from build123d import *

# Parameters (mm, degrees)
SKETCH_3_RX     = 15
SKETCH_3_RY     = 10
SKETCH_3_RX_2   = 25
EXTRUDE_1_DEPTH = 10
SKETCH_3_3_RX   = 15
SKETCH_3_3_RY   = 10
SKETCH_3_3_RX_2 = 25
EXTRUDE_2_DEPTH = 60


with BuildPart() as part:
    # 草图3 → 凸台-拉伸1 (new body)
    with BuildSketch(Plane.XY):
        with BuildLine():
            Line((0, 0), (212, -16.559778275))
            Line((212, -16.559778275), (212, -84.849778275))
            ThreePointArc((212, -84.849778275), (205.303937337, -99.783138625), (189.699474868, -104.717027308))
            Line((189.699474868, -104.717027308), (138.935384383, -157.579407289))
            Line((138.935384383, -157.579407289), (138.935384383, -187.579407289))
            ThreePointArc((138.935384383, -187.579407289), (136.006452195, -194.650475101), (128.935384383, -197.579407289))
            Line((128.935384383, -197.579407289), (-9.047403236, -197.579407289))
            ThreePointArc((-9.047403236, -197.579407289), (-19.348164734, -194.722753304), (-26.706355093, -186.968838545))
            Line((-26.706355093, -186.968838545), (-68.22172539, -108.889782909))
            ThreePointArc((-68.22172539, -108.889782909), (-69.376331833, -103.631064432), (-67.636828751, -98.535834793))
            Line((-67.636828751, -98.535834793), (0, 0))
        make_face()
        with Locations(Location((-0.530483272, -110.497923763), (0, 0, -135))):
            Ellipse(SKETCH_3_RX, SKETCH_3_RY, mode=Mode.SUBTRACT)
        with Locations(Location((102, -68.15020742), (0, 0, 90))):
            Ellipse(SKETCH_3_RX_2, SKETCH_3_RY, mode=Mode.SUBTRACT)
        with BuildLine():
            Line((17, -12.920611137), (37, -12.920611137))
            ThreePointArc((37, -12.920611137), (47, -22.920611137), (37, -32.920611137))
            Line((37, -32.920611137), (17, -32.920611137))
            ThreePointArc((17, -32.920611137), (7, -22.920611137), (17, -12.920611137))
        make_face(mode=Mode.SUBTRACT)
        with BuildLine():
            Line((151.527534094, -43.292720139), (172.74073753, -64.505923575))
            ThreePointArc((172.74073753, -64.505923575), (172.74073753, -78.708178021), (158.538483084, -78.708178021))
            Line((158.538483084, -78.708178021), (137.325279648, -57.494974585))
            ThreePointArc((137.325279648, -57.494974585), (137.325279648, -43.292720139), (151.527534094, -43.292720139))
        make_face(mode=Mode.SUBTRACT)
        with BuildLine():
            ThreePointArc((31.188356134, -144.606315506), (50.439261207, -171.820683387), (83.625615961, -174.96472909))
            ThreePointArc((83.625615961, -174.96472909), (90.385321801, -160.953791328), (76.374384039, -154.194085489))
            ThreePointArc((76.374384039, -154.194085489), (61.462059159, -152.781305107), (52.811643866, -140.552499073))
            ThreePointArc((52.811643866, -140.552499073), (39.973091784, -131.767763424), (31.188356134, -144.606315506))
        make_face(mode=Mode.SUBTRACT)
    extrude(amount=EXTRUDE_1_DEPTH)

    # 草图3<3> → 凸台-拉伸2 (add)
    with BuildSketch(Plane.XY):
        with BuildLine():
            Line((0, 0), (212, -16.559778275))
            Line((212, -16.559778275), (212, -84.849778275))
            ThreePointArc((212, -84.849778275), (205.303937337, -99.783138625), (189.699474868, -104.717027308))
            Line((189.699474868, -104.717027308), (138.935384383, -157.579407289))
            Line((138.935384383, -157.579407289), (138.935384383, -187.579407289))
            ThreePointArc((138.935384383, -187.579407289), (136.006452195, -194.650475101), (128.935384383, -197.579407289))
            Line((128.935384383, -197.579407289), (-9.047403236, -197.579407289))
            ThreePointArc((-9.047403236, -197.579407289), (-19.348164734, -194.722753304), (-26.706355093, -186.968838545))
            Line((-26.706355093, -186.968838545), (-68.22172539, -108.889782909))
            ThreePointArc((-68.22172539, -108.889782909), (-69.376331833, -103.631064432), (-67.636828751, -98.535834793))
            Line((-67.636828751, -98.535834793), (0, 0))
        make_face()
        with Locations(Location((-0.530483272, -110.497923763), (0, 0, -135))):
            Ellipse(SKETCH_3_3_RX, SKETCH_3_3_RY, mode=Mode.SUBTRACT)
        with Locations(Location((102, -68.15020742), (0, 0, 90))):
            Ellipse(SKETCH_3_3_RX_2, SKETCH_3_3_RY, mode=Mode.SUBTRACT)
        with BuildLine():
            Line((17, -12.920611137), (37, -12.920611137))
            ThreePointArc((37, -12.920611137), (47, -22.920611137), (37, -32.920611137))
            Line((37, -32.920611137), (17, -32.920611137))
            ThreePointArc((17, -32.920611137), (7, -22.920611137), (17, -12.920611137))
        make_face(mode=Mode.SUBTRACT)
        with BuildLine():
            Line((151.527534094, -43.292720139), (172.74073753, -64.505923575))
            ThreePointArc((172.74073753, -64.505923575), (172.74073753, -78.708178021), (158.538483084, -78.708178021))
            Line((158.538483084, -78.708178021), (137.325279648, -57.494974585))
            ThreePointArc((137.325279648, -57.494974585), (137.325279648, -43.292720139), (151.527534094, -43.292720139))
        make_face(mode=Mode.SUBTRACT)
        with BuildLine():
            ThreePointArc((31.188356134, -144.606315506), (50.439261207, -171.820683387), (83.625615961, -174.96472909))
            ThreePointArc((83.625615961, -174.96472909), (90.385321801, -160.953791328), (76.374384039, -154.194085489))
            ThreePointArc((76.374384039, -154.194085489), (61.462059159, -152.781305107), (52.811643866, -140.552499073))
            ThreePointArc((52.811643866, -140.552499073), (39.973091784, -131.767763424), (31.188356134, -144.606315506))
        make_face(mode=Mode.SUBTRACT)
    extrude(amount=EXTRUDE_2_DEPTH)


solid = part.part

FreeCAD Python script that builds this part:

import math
import FreeCAD as App
import Part
import Sketcher
Q = App.Units.Quantity

doc = App.newDocument("Part")
params = doc.addObject("Spreadsheet::Sheet", "Params")
for row, (alias, value) in enumerate([
    ("sketch1_radius", "10 mm"),
    ("sketch1_radius2", "20 mm"),
    ("sketch1_radius3", "11 mm"),
    ("sketch1_width", "20 mm"),
    ("sketch1_height", "30 mm"),
    ("pad1_length", "10 mm"),
    ("sketch2_radius", "10 mm"),
    ("sketch2_radius2", "20 mm"),
    ("sketch2_radius3", "11 mm"),
    ("sketch2_width", "20 mm"),
    ("sketch2_height", "30 mm"),
    ("pad2_length", "60 mm"),
], start=1):
    params.set(f"A{row}", alias)
    params.set(f"B{row}", "=" + value)
    params.setAlias(f"B{row}", alias)

body = doc.addObject("PartDesign::Body", "Body")

# Sketch on XY plane
sketch1 = body.newObject("Sketcher::SketchObject", "Sketch")
sketch1.AttachmentSupport = (doc.getObject("XY_Plane"), [""])
sketch1.MapMode = "FlatFace"
sketch1.addGeometry(Part.LineSegment(App.Vector(212, -16.559778, 0), App.Vector(0, 0, 0)), False)
sketch1.addGeometry(Part.LineSegment(App.Vector(0, 0, 0), App.Vector(-67.636829, -98.535835, 0)), False)
sketch1.addGeometry(Part.ArcOfCircle(Part.Circle(App.Vector(-59.392249, -104.195067, 0), App.Vector(0, 0, 1), 10), math.radians(145.533572), math.radians(208)), False)
sketch1.addGeometry(Part.LineSegment(App.Vector(-68.221725, -108.889783, 0), App.Vector(-26.706355, -186.968839, 0)), False)
sketch1.addGeometry(Part.ArcOfCircle(Part.Circle(App.Vector(-9.047403, -177.579407, 0), App.Vector(0, 0, 1), 20), math.radians(-152), math.radians(-90)), False)
sketch1.addGeometry(Part.LineSegment(App.Vector(-9.047403, -197.579407, 0), App.Vector(128.935384, -197.579407, 0)), False)
sketch1.addGeometry(Part.ArcOfCircle(Part.Circle(App.Vector(128.935384, -187.579407, 0), App.Vector(0, 0, 1), 10), math.radians(-90), math.radians(0)), False)
sketch1.addGeometry(Part.LineSegment(App.Vector(138.935384, -187.579407, 0), App.Vector(138.935384, -157.579407, 0)), False)
sketch1.addGeometry(Part.LineSegment(App.Vector(138.935384, -157.579407, 0), App.Vector(189.699475, -104.717027, 0)), False)
sketch1.addGeometry(Part.ArcOfCircle(Part.Circle(App.Vector(192, -84.849778, 0), App.Vector(0, 0, 1), 20), math.radians(-96.605139), math.radians(0)), False)
sketch1.addGeometry(Part.LineSegment(App.Vector(212, -84.849778, 0), App.Vector(212, -16.559778, 0)), False)
sketch1.addGeometry(Part.ArcOfCircle(Part.Circle(App.Vector(42, -142.579407, 0), App.Vector(0, 0, 1), 11), math.radians(10.618247), math.radians(190.618247)), False)
sketch1.addGeometry(Part.ArcOfCircle(Part.Circle(App.Vector(70.457094, -137.244426, 0), App.Vector(0, 0, 1), 17.952863), math.radians(-169.381753), math.radians(-70.755413)), False)
sketch1.addGeometry(Part.ArcOfCircle(Part.Circle(App.Vector(80, -164.579407, 0), App.Vector(0, 0, 1), 11), math.radians(-70.755413), math.radians(109.244587)), False)
sketch1.addGeometry(Part.ArcOfCircle(Part.Circle(App.Vector(70.457094, -137.244426, 0), App.Vector(0, 0, 1), 39.952863), math.radians(-169.381753), math.radians(-70.755413)), False)
sketch1.addGeometry(Part.Ellipse(App.Vector(-11.137085, -121.104525, 0), App.Vector(6.540585, -117.568992, 0), App.Vector(-0.530483, -110.497924, 0)), False)
sketch1.addGeometry(Part.LineSegment(App.Vector(151.527534, -43.29272, 0), App.Vector(172.740738, -64.505924, 0)), False)
sketch1.addGeometry(Part.ArcOfCircle(Part.Circle(App.Vector(165.63961, -71.607051, 0), App.Vector(0, 0, 1), 10.04251), math.radians(-135), math.radians(45)), False)
sketch1.addGeometry(Part.LineSegment(App.Vector(158.538483, -78.708178, 0), App.Vector(137.32528, -57.494975, 0)), False)
sketch1.addGeometry(Part.ArcOfCircle(Part.Circle(App.Vector(144.426407, -50.393847, 0), App.Vector(0, 0, 1), 10.04251), math.radians(45), math.radians(225)), False)
sketch1.addGeometry(Part.Ellipse(App.Vector(102, -43.150207, 0), App.Vector(92, -68.150207, 0), App.Vector(102, -68.150207, 0)), False)
sketch1.addGeometry(Part.LineSegment(App.Vector(17, -12.920611, 0), App.Vector(37, -12.920611, 0)), False)
sketch1.addGeometry(Part.ArcOfCircle(Part.Circle(App.Vector(37, -22.920611, 0), App.Vector(0, 0, 1), 10), math.radians(-90), math.radians(90)), False)
sketch1.addGeometry(Part.LineSegment(App.Vector(37, -32.920611, 0), App.Vector(17, -32.920611, 0)), False)
sketch1.addGeometry(Part.ArcOfCircle(Part.Circle(App.Vector(17, -22.920611, 0), App.Vector(0, 0, 1), 10), math.radians(90), math.radians(270)), False)
sketch1.addConstraint(Sketcher.Constraint("Block", 15))
sketch1.addConstraint(Sketcher.Constraint("Block", 20))
sketch1.addConstraint(Sketcher.Constraint("Coincident", 0, 2, 1, 1))
sketch1.addConstraint(Sketcher.Constraint("Tangent", 1, 2, 2, 1))
sketch1.addConstraint(Sketcher.Constraint("Tangent", 2, 2, 3, 1))
sketch1.addConstraint(Sketcher.Constraint("Tangent", 3, 2, 4, 1))
sketch1.addConstraint(Sketcher.Constraint("Tangent", 4, 2, 5, 1))
sketch1.addConstraint(Sketcher.Constraint("Tangent", 5, 2, 6, 1))
sketch1.addConstraint(Sketcher.Constraint("Tangent", 6, 2, 7, 1))
sketch1.addConstraint(Sketcher.Constraint("Coincident", 7, 2, 8, 1))
sketch1.addConstraint(Sketcher.Constraint("Coincident", 8, 2, 9, 1))
sketch1.addConstraint(Sketcher.Constraint("Tangent", 9, 2, 10, 1))
sketch1.addConstraint(Sketcher.Constraint("Coincident", 10, 2, 0, 1))
sketch1.addConstraint(Sketcher.Constraint("Tangent", 11, 1, 12, 1))
sketch1.addConstraint(Sketcher.Constraint("Tangent", 12, 2, 13, 2))
sketch1.addConstraint(Sketcher.Constraint("Tangent", 13, 1, 14, 2))
sketch1.addConstraint(Sketcher.Constraint("Tangent", 14, 1, 11, 2))
sketch1.addConstraint(Sketcher.Constraint("Tangent", 16, 2, 17, 2))
sketch1.addConstraint(Sketcher.Constraint("Tangent", 17, 1, 18, 1))
sketch1.addConstraint(Sketcher.Constraint("Tangent", 18, 2, 19, 2))
sketch1.addConstraint(Sketcher.Constraint("Tangent", 19, 1, 16, 1))
sketch1.addConstraint(Sketcher.Constraint("Tangent", 21, 2, 22, 2))
sketch1.addConstraint(Sketcher.Constraint("Tangent", 22, 1, 23, 1))
sketch1.addConstraint(Sketcher.Constraint("Tangent", 23, 2, 24, 2))
sketch1.addConstraint(Sketcher.Constraint("Tangent", 24, 1, 21, 1))
sketch1.addConstraint(Sketcher.Constraint("Horizontal", 5))
sketch1.addConstraint(Sketcher.Constraint("Vertical", 7))
sketch1.addConstraint(Sketcher.Constraint("Vertical", 10))
sketch1.addConstraint(Sketcher.Constraint("Horizontal", 21))
sketch1.addConstraint(Sketcher.Constraint("Horizontal", 23))
sketch1.addConstraint(Sketcher.Constraint("Coincident", 0, 2, -1, 1))
sketch1.addConstraint(Sketcher.Constraint("Coincident", 14, 3, 12, 3))
sketch1.addConstraint(Sketcher.Constraint("Equal", 2, 6))
sketch1.addConstraint(Sketcher.Constraint("Equal", 4, 9))
sketch1.addConstraint(Sketcher.Constraint("Equal", 17, 19))
sketch1.addConstraint(Sketcher.Constraint("Equal", 6, 22))
sketch1.addConstraint(Sketcher.Constraint("Radius", 2, Q("10 mm")))
sketch1.addConstraint(Sketcher.Constraint("Radius", 4, Q("20 mm")))
sketch1.addConstraint(Sketcher.Constraint("Radius", 11, Q("11 mm")))
sketch1.addConstraint(Sketcher.Constraint("DistanceX", 21, 1, 21, 2, Q("20 mm")))
sketch1.addConstraint(Sketcher.Constraint("DistanceY", 7, 1, 7, 2, Q("30 mm")))
sketch1.addConstraint(Sketcher.Constraint("Angle", 3, Q("-62 deg")))
sketch1.addConstraint(Sketcher.Constraint("Angle", 16, Q("-45 deg")))
sketch1.addConstraint(Sketcher.Constraint("Distance", 16, Q("30 mm")))
sketch1.addConstraint(Sketcher.Constraint("DistanceX", -1, 1, 9, 3, Q("192 mm")))
sketch1.addConstraint(Sketcher.Constraint("DistanceX", -1, 1, 11, 3, Q("42 mm")))
sketch1.addConstraint(Sketcher.Constraint("DistanceX", -1, 1, 13, 3, Q("80 mm")))
sketch1.addConstraint(Sketcher.Constraint("DistanceX", -1, 1, 22, 3, Q("37 mm")))
sketch1.addConstraint(Sketcher.Constraint("DistanceY", 4, 3, 11, 3, Q("35 mm")))
sketch1.addConstraint(Sketcher.Constraint("DistanceY", 13, 3, 11, 3, Q("22 mm")))
sketch1.addConstraint(Sketcher.Constraint("DistanceY", 10, 1, 10, 2, Q("68.29 mm")))
sketch1.addConstraint(Sketcher.Constraint("Angle", 8, Q("46.16 deg")))
sketch1.addConstraint(Sketcher.Constraint("Distance", 3, Q("88.43 mm")))
sketch1.addConstraint(Sketcher.Constraint("Distance", 8, Q("73.29 mm")))
sketch1.addConstraint(Sketcher.Constraint("Radius", 17, Q("10.04251 mm")))
sketch1.addConstraint(Sketcher.Constraint("Radius", 12, Q("17.952863 mm")))
sketch1.addConstraint(Sketcher.Constraint("DistanceY", 11, 1, -1, 1, Q("140.552499 mm")))
sketch1.addConstraint(Sketcher.Constraint("DistanceY", 9, 3, 17, 1, Q("6.1416 mm")))
sketch1.addConstraint(Sketcher.Constraint("DistanceX", 5, 1, 5, 2, Q("137.982788 mm")))
sketch1.addConstraint(Sketcher.Constraint("DistanceX", 2, 3, -1, 1, Q("59.392249 mm")))
sketch1.addConstraint(Sketcher.Constraint("DistanceX", -1, 1, 17, 3, Q("165.63961 mm")))
sketch1.addConstraint(Sketcher.Constraint("DistanceY", 22, 3, -1, 1, Q("22.920611 mm")))
sketch1.setExpression("Constraints[36]", "Params.sketch1_radius")
sketch1.setExpression("Constraints[37]", "Params.sketch1_radius2")
sketch1.setExpression("Constraints[38]", "Params.sketch1_radius3")
sketch1.setExpression("Constraints[39]", "Params.sketch1_width")
sketch1.setExpression("Constraints[40]", "Params.sketch1_height")
pad1 = body.newObject("PartDesign::Pad", "Pad")
pad1.Profile = sketch1
pad1.setExpression("Length", "Params.pad1_length")

# Sketch on XY plane
sketch2 = body.newObject("Sketcher::SketchObject", "Sketch001")
sketch2.AttachmentSupport = (doc.getObject("XY_Plane"), [""])
sketch2.MapMode = "FlatFace"
sketch2.addGeometry(Part.LineSegment(App.Vector(212, -16.559778, 0), App.Vector(0, 0, 0)), False)
sketch2.addGeometry(Part.LineSegment(App.Vector(0, 0, 0), App.Vector(-67.636829, -98.535835, 0)), False)
sketch2.addGeometry(Part.ArcOfCircle(Part.Circle(App.Vector(-59.392249, -104.195067, 0), App.Vector(0, 0, 1), 10), math.radians(145.533572), math.radians(208)), False)
sketch2.addGeometry(Part.LineSegment(App.Vector(-68.221725, -108.889783, 0), App.Vector(-26.706355, -186.968839, 0)), False)
sketch2.addGeometry(Part.ArcOfCircle(Part.Circle(App.Vector(-9.047403, -177.579407, 0), App.Vector(0, 0, 1), 20), math.radians(-152), math.radians(-90)), False)
sketch2.addGeometry(Part.LineSegment(App.Vector(-9.047403, -197.579407, 0), App.Vector(128.935384, -197.579407, 0)), False)
sketch2.addGeometry(Part.ArcOfCircle(Part.Circle(App.Vector(128.935384, -187.579407, 0), App.Vector(0, 0, 1), 10), math.radians(-90), math.radians(0)), False)
sketch2.addGeometry(Part.LineSegment(App.Vector(138.935384, -187.579407, 0), App.Vector(138.935384, -157.579407, 0)), False)
sketch2.addGeometry(Part.LineSegment(App.Vector(138.935384, -157.579407, 0), App.Vector(189.699475, -104.717027, 0)), False)
sketch2.addGeometry(Part.ArcOfCircle(Part.Circle(App.Vector(192, -84.849778, 0), App.Vector(0, 0, 1), 20), math.radians(-96.605139), math.radians(0)), False)
sketch2.addGeometry(Part.LineSegment(App.Vector(212, -84.849778, 0), App.Vector(212, -16.559778, 0)), False)
sketch2.addGeometry(Part.ArcOfCircle(Part.Circle(App.Vector(42, -142.579407, 0), App.Vector(0, 0, 1), 11), math.radians(10.618247), math.radians(190.618247)), False)
sketch2.addGeometry(Part.ArcOfCircle(Part.Circle(App.Vector(70.457094, -137.244426, 0), App.Vector(0, 0, 1), 17.952863), math.radians(-169.381753), math.radians(-70.755413)), False)
sketch2.addGeometry(Part.ArcOfCircle(Part.Circle(App.Vector(80, -164.579407, 0), App.Vector(0, 0, 1), 11), math.radians(-70.755413), math.radians(109.244587)), False)
sketch2.addGeometry(Part.ArcOfCircle(Part.Circle(App.Vector(70.457094, -137.244426, 0), App.Vector(0, 0, 1), 39.952863), math.radians(-169.381753), math.radians(-70.755413)), False)
sketch2.addGeometry(Part.Ellipse(App.Vector(-11.137085, -121.104525, 0), App.Vector(6.540585, -117.568992, 0), App.Vector(-0.530483, -110.497924, 0)), False)
sketch2.addGeometry(Part.LineSegment(App.Vector(151.527534, -43.29272, 0), App.Vector(172.740738, -64.505924, 0)), False)
sketch2.addGeometry(Part.ArcOfCircle(Part.Circle(App.Vector(165.63961, -71.607051, 0), App.Vector(0, 0, 1), 10.04251), math.radians(-135), math.radians(45)), False)
sketch2.addGeometry(Part.LineSegment(App.Vector(158.538483, -78.708178, 0), App.Vector(137.32528, -57.494975, 0)), False)
sketch2.addGeometry(Part.ArcOfCircle(Part.Circle(App.Vector(144.426407, -50.393847, 0), App.Vector(0, 0, 1), 10.04251), math.radians(45), math.radians(225)), False)
sketch2.addGeometry(Part.Ellipse(App.Vector(102, -43.150207, 0), App.Vector(92, -68.150207, 0), App.Vector(102, -68.150207, 0)), False)
sketch2.addGeometry(Part.LineSegment(App.Vector(17, -12.920611, 0), App.Vector(37, -12.920611, 0)), False)
sketch2.addGeometry(Part.ArcOfCircle(Part.Circle(App.Vector(37, -22.920611, 0), App.Vector(0, 0, 1), 10), math.radians(-90), math.radians(90)), False)
sketch2.addGeometry(Part.LineSegment(App.Vector(37, -32.920611, 0), App.Vector(17, -32.920611, 0)), False)
sketch2.addGeometry(Part.ArcOfCircle(Part.Circle(App.Vector(17, -22.920611, 0), App.Vector(0, 0, 1), 10), math.radians(90), math.radians(270)), False)
sketch2.addConstraint(Sketcher.Constraint("Block", 15))
sketch2.addConstraint(Sketcher.Constraint("Block", 20))
sketch2.addConstraint(Sketcher.Constraint("Coincident", 0, 2, 1, 1))
sketch2.addConstraint(Sketcher.Constraint("Tangent", 1, 2, 2, 1))
sketch2.addConstraint(Sketcher.Constraint("Tangent", 2, 2, 3, 1))
sketch2.addConstraint(Sketcher.Constraint("Tangent", 3, 2, 4, 1))
sketch2.addConstraint(Sketcher.Constraint("Tangent", 4, 2, 5, 1))
sketch2.addConstraint(Sketcher.Constraint("Tangent", 5, 2, 6, 1))
sketch2.addConstraint(Sketcher.Constraint("Tangent", 6, 2, 7, 1))
sketch2.addConstraint(Sketcher.Constraint("Coincident", 7, 2, 8, 1))
sketch2.addConstraint(Sketcher.Constraint("Coincident", 8, 2, 9, 1))
sketch2.addConstraint(Sketcher.Constraint("Tangent", 9, 2, 10, 1))
sketch2.addConstraint(Sketcher.Constraint("Coincident", 10, 2, 0, 1))
sketch2.addConstraint(Sketcher.Constraint("Tangent", 11, 1, 12, 1))
sketch2.addConstraint(Sketcher.Constraint("Tangent", 12, 2, 13, 2))
sketch2.addConstraint(Sketcher.Constraint("Tangent", 13, 1, 14, 2))
sketch2.addConstraint(Sketcher.Constraint("Tangent", 14, 1, 11, 2))
sketch2.addConstraint(Sketcher.Constraint("Tangent", 16, 2, 17, 2))
sketch2.addConstraint(Sketcher.Constraint("Tangent", 17, 1, 18, 1))
sketch2.addConstraint(Sketcher.Constraint("Tangent", 18, 2, 19, 2))
sketch2.addConstraint(Sketcher.Constraint("Tangent", 19, 1, 16, 1))
sketch2.addConstraint(Sketcher.Constraint("Tangent", 21, 2, 22, 2))
sketch2.addConstraint(Sketcher.Constraint("Tangent", 22, 1, 23, 1))
sketch2.addConstraint(Sketcher.Constraint("Tangent", 23, 2, 24, 2))
sketch2.addConstraint(Sketcher.Constraint("Tangent", 24, 1, 21, 1))
sketch2.addConstraint(Sketcher.Constraint("Horizontal", 5))
sketch2.addConstraint(Sketcher.Constraint("Vertical", 7))
sketch2.addConstraint(Sketcher.Constraint("Vertical", 10))
sketch2.addConstraint(Sketcher.Constraint("Horizontal", 21))
sketch2.addConstraint(Sketcher.Constraint("Horizontal", 23))
sketch2.addConstraint(Sketcher.Constraint("Coincident", 0, 2, -1, 1))
sketch2.addConstraint(Sketcher.Constraint("Coincident", 14, 3, 12, 3))
sketch2.addConstraint(Sketcher.Constraint("Equal", 2, 6))
sketch2.addConstraint(Sketcher.Constraint("Equal", 4, 9))
sketch2.addConstraint(Sketcher.Constraint("Equal", 17, 19))
sketch2.addConstraint(Sketcher.Constraint("Equal", 6, 22))
sketch2.addConstraint(Sketcher.Constraint("Radius", 2, Q("10 mm")))
sketch2.addConstraint(Sketcher.Constraint("Radius", 4, Q("20 mm")))
sketch2.addConstraint(Sketcher.Constraint("Radius", 11, Q("11 mm")))
sketch2.addConstraint(Sketcher.Constraint("DistanceX", 21, 1, 21, 2, Q("20 mm")))
sketch2.addConstraint(Sketcher.Constraint("DistanceY", 7, 1, 7, 2, Q("30 mm")))
sketch2.addConstraint(Sketcher.Constraint("Angle", 3, Q("-62 deg")))
sketch2.addConstraint(Sketcher.Constraint("Angle", 16, Q("-45 deg")))
sketch2.addConstraint(Sketcher.Constraint("Distance", 16, Q("30 mm")))
sketch2.addConstraint(Sketcher.Constraint("DistanceX", -1, 1, 9, 3, Q("192 mm")))
sketch2.addConstraint(Sketcher.Constraint("DistanceX", -1, 1, 11, 3, Q("42 mm")))
sketch2.addConstraint(Sketcher.Constraint("DistanceX", -1, 1, 13, 3, Q("80 mm")))
sketch2.addConstraint(Sketcher.Constraint("DistanceX", -1, 1, 22, 3, Q("37 mm")))
sketch2.addConstraint(Sketcher.Constraint("DistanceY", 4, 3, 11, 3, Q("35 mm")))
sketch2.addConstraint(Sketcher.Constraint("DistanceY", 13, 3, 11, 3, Q("22 mm")))
sketch2.addConstraint(Sketcher.Constraint("DistanceY", 10, 1, 10, 2, Q("68.29 mm")))
sketch2.addConstraint(Sketcher.Constraint("Angle", 8, Q("46.16 deg")))
sketch2.addConstraint(Sketcher.Constraint("Distance", 3, Q("88.43 mm")))
sketch2.addConstraint(Sketcher.Constraint("Distance", 8, Q("73.29 mm")))
sketch2.addConstraint(Sketcher.Constraint("Radius", 17, Q("10.04251 mm")))
sketch2.addConstraint(Sketcher.Constraint("Radius", 12, Q("17.952863 mm")))
sketch2.addConstraint(Sketcher.Constraint("DistanceY", 11, 1, -1, 1, Q("140.552499 mm")))
sketch2.addConstraint(Sketcher.Constraint("DistanceY", 9, 3, 17, 1, Q("6.1416 mm")))
sketch2.addConstraint(Sketcher.Constraint("DistanceX", 5, 1, 5, 2, Q("137.982788 mm")))
sketch2.addConstraint(Sketcher.Constraint("DistanceX", 2, 3, -1, 1, Q("59.392249 mm")))
sketch2.addConstraint(Sketcher.Constraint("DistanceX", -1, 1, 17, 3, Q("165.63961 mm")))
sketch2.addConstraint(Sketcher.Constraint("DistanceY", 22, 3, -1, 1, Q("22.920611 mm")))
sketch2.setExpression("Constraints[36]", "Params.sketch2_radius")
sketch2.setExpression("Constraints[37]", "Params.sketch2_radius2")
sketch2.setExpression("Constraints[38]", "Params.sketch2_radius3")
sketch2.setExpression("Constraints[39]", "Params.sketch2_width")
sketch2.setExpression("Constraints[40]", "Params.sketch2_height")
pad2 = body.newObject("PartDesign::Pad", "Pad001")
pad2.Profile = sketch2
pad2.setExpression("Length", "Params.pad2_length")

doc.recompute()
